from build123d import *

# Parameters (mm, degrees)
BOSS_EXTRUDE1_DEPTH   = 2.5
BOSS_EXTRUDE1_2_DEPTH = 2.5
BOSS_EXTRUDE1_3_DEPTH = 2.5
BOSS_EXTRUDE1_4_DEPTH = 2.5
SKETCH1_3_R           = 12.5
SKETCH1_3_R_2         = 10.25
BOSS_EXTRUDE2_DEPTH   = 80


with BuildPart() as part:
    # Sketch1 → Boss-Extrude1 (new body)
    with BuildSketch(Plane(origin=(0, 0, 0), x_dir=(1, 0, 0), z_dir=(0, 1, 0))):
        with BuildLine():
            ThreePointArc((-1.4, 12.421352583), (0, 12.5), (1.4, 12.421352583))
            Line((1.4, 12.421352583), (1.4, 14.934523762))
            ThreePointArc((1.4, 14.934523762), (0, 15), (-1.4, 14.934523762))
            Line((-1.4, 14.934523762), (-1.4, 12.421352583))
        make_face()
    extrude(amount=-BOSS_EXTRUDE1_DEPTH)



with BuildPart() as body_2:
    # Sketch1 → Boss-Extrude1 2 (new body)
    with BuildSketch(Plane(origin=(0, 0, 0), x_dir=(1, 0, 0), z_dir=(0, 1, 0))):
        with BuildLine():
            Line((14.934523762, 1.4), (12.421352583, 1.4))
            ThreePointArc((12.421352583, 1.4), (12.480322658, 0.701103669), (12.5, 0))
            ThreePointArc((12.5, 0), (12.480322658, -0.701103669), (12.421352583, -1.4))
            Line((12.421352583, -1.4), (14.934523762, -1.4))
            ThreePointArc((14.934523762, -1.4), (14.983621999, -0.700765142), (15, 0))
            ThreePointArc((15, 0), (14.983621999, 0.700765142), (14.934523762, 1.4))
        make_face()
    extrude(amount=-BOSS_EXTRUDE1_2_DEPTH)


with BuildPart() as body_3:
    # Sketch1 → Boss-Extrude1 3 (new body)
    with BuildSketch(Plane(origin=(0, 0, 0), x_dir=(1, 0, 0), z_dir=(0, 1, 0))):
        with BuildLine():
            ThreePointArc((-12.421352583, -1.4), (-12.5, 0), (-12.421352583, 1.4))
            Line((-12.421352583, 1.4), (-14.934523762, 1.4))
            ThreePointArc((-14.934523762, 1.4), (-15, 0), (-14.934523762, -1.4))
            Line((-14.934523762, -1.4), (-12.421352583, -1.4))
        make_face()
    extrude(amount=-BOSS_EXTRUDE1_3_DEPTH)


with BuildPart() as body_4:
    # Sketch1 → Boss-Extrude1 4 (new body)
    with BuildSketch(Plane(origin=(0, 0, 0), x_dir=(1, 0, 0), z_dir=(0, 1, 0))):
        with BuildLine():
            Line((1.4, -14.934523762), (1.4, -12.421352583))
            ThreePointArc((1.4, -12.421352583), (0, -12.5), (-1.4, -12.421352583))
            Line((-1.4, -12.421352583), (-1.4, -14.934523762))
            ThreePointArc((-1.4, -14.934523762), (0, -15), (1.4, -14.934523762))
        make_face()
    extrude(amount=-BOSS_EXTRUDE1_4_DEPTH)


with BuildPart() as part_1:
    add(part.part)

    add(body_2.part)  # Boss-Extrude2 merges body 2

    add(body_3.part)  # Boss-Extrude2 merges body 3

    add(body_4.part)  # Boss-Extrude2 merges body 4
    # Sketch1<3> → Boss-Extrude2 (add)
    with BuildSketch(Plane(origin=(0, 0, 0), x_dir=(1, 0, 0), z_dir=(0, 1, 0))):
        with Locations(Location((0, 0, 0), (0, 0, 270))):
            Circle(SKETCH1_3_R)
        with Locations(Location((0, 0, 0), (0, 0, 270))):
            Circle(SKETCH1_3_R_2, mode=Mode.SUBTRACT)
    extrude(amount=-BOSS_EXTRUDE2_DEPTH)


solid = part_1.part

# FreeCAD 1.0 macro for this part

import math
import FreeCAD as App
import Part
import Sketcher

doc = App.newDocument("Part")
body = doc.addObject("PartDesign::Body", "Body")

sketch1 = body.newObject("Sketcher::SketchObject", "Sketch")
sketch1.AttachmentSupport = (doc.getObject("XZ_Plane"), [""])
sketch1.MapMode = "FlatFace"
sketch1.addGeometry([
    Part.ArcOfCircle(Part.Circle(App.Vector(0, 0, 0), App.Vector(0, 0, 1), 12.5), math.radians(-96.43062), math.radians(-83.56938)),
    Part.LineSegment(App.Vector(1.4, -12.421353, 0), App.Vector(1.4, -14.934524, 0)),
    Part.ArcOfCircle(Part.Circle(App.Vector(0, 0, 0), App.Vector(0, 0, 1), 15), math.radians(-95.355401), math.radians(-84.644599)),
    Part.LineSegment(App.Vector(-1.4, -14.934524, 0), App.Vector(-1.4, -12.421353, 0)),
], False)
sketch1.addConstraint([
    Sketcher.Constraint("Coincident", 0, 2, 1, 1),
    Sketcher.Constraint("Coincident", 1, 2, 2, 2),
    Sketcher.Constraint("Coincident", 2, 1, 3, 1),
    Sketcher.Constraint("Coincident", 3, 2, 0, 1),
    Sketcher.Constraint("Vertical", 1),
    Sketcher.Constraint("Vertical", 3),
    Sketcher.Constraint("Coincident", 0, 3, -1, 1),
    Sketcher.Constraint("Coincident", 2, 3, -1, 1),
    Sketcher.Constraint("Horizontal", 1, 2, 2, 1),
    Sketcher.Constraint("Radius", 2, 15.0),
    Sketcher.Constraint("Radius", 0, 12.5),
    Sketcher.Constraint("DistanceX", -1, 1, 0, 2, 1.4),
])
pad1 = body.newObject("PartDesign::Pad", "Pad")
pad1.Profile = sketch1
pad1.Length = 2.5
body2 = doc.addObject("PartDesign::Body", "Body001")

sketch2 = body2.newObject("Sketcher::SketchObject", "Sketch001")
sketch2.AttachmentSupport = (doc.getObject("XZ_Plane001"), [""])
sketch2.MapMode = "FlatFace"
sketch2.addGeometry([
    Part.LineSegment(App.Vector(14.934524, -1.4, 0), App.Vector(12.421353, -1.4, 0)),
    Part.ArcOfCircle(Part.Circle(App.Vector(0, 0, 0), App.Vector(0, 0, 1), 12.5), math.radians(-6.43062), math.radians(0)),
    Part.ArcOfCircle(Part.Circle(App.Vector(0, 0, 0), App.Vector(0, 0, 1), 12.5), math.radians(0), math.radians(6.43062)),
    Part.LineSegment(App.Vector(12.421353, 1.4, 0), App.Vector(14.934524, 1.4, 0)),
    Part.ArcOfCircle(Part.Circle(App.Vector(0, 0, 0), App.Vector(0, 0, 1), 15), math.radians(0), math.radians(5.355401)),
    Part.ArcOfCircle(Part.Circle(App.Vector(0, 0, 0), App.Vector(0, 0, 1), 15), math.radians(-5.355401), math.radians(0)),
], False)
sketch2.addConstraint([
    Sketcher.Constraint("Coincident", 0, 2, 1, 1),
    Sketcher.Constraint("Tangent", 1, 2, 2, 1),
    Sketcher.Constraint("Coincident", 2, 2, 3, 1),
    Sketcher.Constraint("Coincident", 3, 2, 4, 2),
    Sketcher.Constraint("Tangent", 4, 1, 5, 2),
    Sketcher.Constraint("Coincident", 5, 1, 0, 1),
    Sketcher.Constraint("Horizontal", 0),
    Sketcher.Constraint("Horizontal", 3),
    Sketcher.Constraint("Coincident", 1, 3, -1, 1),
    Sketcher.Constraint("Coincident", 4, 3, -1, 1),
    Sketcher.Constraint("Equal", 1, 2),
    Sketcher.Constraint("Equal", 4, 5),
    Sketcher.Constraint("PointOnObject", 1, 2, -1),
    Sketcher.Constraint("PointOnObject", 4, 1, -1),
    Sketcher.Constraint("Vertical", 0, 2, 2, 2),
    Sketcher.Constraint("Radius", 4, 15.0),
    Sketcher.Constraint("Radius", 1, 12.5),
    Sketcher.Constraint("DistanceY", 0, 2, -1, 1, 1.4),
])
pad2 = body2.newObject("PartDesign::Pad", "Pad001")
pad2.Profile = sketch2
pad2.Length = 2.5
body3 = doc.addObject("PartDesign::Body", "Body002")

sketch3 = body3.newObject("Sketcher::SketchObject", "Sketch002")
sketch3.AttachmentSupport = (doc.getObject("XZ_Plane002"), [""])
sketch3.MapMode = "FlatFace"
sketch3.addGeometry([
    Part.ArcOfCircle(Part.Circle(App.Vector(0, 0, 0), App.Vector(0, 0, 1), 12.5), math.radians(173.56938), math.radians(186.43062)),
    Part.LineSegment(App.Vector(-12.421353, -1.4, 0), App.Vector(-14.934524, -1.4, 0)),
    Part.ArcOfCircle(Part.Circle(App.Vector(0, 0, 0), App.Vector(0, 0, 1), 15), math.radians(174.644599), math.radians(185.355401)),
    Part.LineSegment(App.Vector(-14.934524, 1.4, 0), App.Vector(-12.421353, 1.4, 0)),
], False)
sketch3.addConstraint([
    Sketcher.Constraint("Coincident", 0, 2, 1, 1),
    Sketcher.Constraint("Coincident", 1, 2, 2, 2),
    Sketcher.Constraint("Coincident", 2, 1, 3, 1),
    Sketcher.Constraint("Coincident", 3, 2, 0, 1),
    Sketcher.Constraint("Horizontal", 1),
    Sketcher.Constraint("Horizontal", 3),
    Sketcher.Constraint("Coincident", 0, 3, -1, 1),
    Sketcher.Constraint("Coincident", 2, 3, -1, 1),
    Sketcher.Constraint("Vertical", 1, 2, 2, 1),
    Sketcher.Constraint("Radius", 2, 15.0),
    Sketcher.Constraint("Radius", 0, 12.5),
    Sketcher.Constraint("DistanceY", 0, 2, -1, 1, 1.4),
])
pad3 = body3.newObject("PartDesign::Pad", "Pad002")
pad3.Profile = sketch3
pad3.Length = 2.5
body4 = doc.addObject("PartDesign::Body", "Body003")

sketch4 = body4.newObject("Sketcher::SketchObject", "Sketch003")
sketch4.AttachmentSupport = (doc.getObject("XZ_Plane003"), [""])
sketch4.MapMode = "FlatFace"
sketch4.addGeometry([
    Part.LineSegment(App.Vector(1.4, 14.934524, 0), App.Vector(1.4, 12.421353, 0)),
    Part.ArcOfCircle(Part.Circle(App.Vector(0, 0, 0), App.Vector(0, 0, 1), 12.5), math.radians(83.56938), math.radians(96.43062)),
    Part.LineSegment(App.Vector(-1.4, 12.421353, 0), App.Vector(-1.4, 14.934524, 0)),
    Part.ArcOfCircle(Part.Circle(App.Vector(0, 0, 0), App.Vector(0, 0, 1), 15), math.radians(84.644599), math.radians(95.355401)),
], False)
sketch4.addConstraint([
    Sketcher.Constraint("Coincident", 0, 2, 1, 1),
    Sketcher.Constraint("Coincident", 1, 2, 2, 1),
    Sketcher.Constraint("Coincident", 2, 2, 3, 2),
    Sketcher.Constraint("Coincident", 3, 1, 0, 1),
    Sketcher.Constraint("Vertical", 0),
    Sketcher.Constraint("Vertical", 2),
    Sketcher.Constraint("Coincident", 1, 3, -1, 1),
    Sketcher.Constraint("Coincident", 3, 3, -1, 1),
    Sketcher.Constraint("Horizontal", 0, 2, 1, 2),
    Sketcher.Constraint("Radius", 3, 15.0),
    Sketcher.Constraint("Radius", 1, 12.5),
    Sketcher.Constraint("DistanceX", -1, 1, 0, 2, 1.4),
])
pad4 = body4.newObject("PartDesign::Pad", "Pad003")
pad4.Profile = sketch4
pad4.Length = 2.5
body.AllowCompound = True
doc.recompute()

boolean = body.newObject("PartDesign::Boolean", "Boolean")
boolean.Type = "Fuse"
boolean.addObjects([body2])
doc.recompute()

boolean2 = body.newObject("PartDesign::Boolean", "Boolean001")
boolean2.Type = "Fuse"
boolean2.addObjects([body3])
doc.recompute()

boolean3 = body.newObject("PartDesign::Boolean", "Boolean002")
boolean3.Type = "Fuse"
boolean3.addObjects([body4])

sketch5 = body.newObject("Sketcher::SketchObject", "Sketch004")
sketch5.AttachmentSupport = (doc.getObject("XZ_Plane"), [""])
sketch5.MapMode = "FlatFace"
sketch5.addGeometry([
    Part.Circle(App.Vector(0, 0, 0), App.Vector(0, 0, 1), 12.5),
    Part.Circle(App.Vector(0, 0, 0), App.Vector(0, 0, 1), 10.25),
], False)
sketch5.addConstraint([
    Sketcher.Constraint("Coincident", 0, 3, -1, 1),
    Sketcher.Constraint("Coincident", 1, 3, -1, 1),
    Sketcher.Constraint("Diameter", 0, 25.0),
    Sketcher.Constraint("Diameter", 1, 20.5),
])
pad5 = body.newObject("PartDesign::Pad", "Pad004")
pad5.Profile = sketch5
pad5.Length = 80

doc.recompute()
